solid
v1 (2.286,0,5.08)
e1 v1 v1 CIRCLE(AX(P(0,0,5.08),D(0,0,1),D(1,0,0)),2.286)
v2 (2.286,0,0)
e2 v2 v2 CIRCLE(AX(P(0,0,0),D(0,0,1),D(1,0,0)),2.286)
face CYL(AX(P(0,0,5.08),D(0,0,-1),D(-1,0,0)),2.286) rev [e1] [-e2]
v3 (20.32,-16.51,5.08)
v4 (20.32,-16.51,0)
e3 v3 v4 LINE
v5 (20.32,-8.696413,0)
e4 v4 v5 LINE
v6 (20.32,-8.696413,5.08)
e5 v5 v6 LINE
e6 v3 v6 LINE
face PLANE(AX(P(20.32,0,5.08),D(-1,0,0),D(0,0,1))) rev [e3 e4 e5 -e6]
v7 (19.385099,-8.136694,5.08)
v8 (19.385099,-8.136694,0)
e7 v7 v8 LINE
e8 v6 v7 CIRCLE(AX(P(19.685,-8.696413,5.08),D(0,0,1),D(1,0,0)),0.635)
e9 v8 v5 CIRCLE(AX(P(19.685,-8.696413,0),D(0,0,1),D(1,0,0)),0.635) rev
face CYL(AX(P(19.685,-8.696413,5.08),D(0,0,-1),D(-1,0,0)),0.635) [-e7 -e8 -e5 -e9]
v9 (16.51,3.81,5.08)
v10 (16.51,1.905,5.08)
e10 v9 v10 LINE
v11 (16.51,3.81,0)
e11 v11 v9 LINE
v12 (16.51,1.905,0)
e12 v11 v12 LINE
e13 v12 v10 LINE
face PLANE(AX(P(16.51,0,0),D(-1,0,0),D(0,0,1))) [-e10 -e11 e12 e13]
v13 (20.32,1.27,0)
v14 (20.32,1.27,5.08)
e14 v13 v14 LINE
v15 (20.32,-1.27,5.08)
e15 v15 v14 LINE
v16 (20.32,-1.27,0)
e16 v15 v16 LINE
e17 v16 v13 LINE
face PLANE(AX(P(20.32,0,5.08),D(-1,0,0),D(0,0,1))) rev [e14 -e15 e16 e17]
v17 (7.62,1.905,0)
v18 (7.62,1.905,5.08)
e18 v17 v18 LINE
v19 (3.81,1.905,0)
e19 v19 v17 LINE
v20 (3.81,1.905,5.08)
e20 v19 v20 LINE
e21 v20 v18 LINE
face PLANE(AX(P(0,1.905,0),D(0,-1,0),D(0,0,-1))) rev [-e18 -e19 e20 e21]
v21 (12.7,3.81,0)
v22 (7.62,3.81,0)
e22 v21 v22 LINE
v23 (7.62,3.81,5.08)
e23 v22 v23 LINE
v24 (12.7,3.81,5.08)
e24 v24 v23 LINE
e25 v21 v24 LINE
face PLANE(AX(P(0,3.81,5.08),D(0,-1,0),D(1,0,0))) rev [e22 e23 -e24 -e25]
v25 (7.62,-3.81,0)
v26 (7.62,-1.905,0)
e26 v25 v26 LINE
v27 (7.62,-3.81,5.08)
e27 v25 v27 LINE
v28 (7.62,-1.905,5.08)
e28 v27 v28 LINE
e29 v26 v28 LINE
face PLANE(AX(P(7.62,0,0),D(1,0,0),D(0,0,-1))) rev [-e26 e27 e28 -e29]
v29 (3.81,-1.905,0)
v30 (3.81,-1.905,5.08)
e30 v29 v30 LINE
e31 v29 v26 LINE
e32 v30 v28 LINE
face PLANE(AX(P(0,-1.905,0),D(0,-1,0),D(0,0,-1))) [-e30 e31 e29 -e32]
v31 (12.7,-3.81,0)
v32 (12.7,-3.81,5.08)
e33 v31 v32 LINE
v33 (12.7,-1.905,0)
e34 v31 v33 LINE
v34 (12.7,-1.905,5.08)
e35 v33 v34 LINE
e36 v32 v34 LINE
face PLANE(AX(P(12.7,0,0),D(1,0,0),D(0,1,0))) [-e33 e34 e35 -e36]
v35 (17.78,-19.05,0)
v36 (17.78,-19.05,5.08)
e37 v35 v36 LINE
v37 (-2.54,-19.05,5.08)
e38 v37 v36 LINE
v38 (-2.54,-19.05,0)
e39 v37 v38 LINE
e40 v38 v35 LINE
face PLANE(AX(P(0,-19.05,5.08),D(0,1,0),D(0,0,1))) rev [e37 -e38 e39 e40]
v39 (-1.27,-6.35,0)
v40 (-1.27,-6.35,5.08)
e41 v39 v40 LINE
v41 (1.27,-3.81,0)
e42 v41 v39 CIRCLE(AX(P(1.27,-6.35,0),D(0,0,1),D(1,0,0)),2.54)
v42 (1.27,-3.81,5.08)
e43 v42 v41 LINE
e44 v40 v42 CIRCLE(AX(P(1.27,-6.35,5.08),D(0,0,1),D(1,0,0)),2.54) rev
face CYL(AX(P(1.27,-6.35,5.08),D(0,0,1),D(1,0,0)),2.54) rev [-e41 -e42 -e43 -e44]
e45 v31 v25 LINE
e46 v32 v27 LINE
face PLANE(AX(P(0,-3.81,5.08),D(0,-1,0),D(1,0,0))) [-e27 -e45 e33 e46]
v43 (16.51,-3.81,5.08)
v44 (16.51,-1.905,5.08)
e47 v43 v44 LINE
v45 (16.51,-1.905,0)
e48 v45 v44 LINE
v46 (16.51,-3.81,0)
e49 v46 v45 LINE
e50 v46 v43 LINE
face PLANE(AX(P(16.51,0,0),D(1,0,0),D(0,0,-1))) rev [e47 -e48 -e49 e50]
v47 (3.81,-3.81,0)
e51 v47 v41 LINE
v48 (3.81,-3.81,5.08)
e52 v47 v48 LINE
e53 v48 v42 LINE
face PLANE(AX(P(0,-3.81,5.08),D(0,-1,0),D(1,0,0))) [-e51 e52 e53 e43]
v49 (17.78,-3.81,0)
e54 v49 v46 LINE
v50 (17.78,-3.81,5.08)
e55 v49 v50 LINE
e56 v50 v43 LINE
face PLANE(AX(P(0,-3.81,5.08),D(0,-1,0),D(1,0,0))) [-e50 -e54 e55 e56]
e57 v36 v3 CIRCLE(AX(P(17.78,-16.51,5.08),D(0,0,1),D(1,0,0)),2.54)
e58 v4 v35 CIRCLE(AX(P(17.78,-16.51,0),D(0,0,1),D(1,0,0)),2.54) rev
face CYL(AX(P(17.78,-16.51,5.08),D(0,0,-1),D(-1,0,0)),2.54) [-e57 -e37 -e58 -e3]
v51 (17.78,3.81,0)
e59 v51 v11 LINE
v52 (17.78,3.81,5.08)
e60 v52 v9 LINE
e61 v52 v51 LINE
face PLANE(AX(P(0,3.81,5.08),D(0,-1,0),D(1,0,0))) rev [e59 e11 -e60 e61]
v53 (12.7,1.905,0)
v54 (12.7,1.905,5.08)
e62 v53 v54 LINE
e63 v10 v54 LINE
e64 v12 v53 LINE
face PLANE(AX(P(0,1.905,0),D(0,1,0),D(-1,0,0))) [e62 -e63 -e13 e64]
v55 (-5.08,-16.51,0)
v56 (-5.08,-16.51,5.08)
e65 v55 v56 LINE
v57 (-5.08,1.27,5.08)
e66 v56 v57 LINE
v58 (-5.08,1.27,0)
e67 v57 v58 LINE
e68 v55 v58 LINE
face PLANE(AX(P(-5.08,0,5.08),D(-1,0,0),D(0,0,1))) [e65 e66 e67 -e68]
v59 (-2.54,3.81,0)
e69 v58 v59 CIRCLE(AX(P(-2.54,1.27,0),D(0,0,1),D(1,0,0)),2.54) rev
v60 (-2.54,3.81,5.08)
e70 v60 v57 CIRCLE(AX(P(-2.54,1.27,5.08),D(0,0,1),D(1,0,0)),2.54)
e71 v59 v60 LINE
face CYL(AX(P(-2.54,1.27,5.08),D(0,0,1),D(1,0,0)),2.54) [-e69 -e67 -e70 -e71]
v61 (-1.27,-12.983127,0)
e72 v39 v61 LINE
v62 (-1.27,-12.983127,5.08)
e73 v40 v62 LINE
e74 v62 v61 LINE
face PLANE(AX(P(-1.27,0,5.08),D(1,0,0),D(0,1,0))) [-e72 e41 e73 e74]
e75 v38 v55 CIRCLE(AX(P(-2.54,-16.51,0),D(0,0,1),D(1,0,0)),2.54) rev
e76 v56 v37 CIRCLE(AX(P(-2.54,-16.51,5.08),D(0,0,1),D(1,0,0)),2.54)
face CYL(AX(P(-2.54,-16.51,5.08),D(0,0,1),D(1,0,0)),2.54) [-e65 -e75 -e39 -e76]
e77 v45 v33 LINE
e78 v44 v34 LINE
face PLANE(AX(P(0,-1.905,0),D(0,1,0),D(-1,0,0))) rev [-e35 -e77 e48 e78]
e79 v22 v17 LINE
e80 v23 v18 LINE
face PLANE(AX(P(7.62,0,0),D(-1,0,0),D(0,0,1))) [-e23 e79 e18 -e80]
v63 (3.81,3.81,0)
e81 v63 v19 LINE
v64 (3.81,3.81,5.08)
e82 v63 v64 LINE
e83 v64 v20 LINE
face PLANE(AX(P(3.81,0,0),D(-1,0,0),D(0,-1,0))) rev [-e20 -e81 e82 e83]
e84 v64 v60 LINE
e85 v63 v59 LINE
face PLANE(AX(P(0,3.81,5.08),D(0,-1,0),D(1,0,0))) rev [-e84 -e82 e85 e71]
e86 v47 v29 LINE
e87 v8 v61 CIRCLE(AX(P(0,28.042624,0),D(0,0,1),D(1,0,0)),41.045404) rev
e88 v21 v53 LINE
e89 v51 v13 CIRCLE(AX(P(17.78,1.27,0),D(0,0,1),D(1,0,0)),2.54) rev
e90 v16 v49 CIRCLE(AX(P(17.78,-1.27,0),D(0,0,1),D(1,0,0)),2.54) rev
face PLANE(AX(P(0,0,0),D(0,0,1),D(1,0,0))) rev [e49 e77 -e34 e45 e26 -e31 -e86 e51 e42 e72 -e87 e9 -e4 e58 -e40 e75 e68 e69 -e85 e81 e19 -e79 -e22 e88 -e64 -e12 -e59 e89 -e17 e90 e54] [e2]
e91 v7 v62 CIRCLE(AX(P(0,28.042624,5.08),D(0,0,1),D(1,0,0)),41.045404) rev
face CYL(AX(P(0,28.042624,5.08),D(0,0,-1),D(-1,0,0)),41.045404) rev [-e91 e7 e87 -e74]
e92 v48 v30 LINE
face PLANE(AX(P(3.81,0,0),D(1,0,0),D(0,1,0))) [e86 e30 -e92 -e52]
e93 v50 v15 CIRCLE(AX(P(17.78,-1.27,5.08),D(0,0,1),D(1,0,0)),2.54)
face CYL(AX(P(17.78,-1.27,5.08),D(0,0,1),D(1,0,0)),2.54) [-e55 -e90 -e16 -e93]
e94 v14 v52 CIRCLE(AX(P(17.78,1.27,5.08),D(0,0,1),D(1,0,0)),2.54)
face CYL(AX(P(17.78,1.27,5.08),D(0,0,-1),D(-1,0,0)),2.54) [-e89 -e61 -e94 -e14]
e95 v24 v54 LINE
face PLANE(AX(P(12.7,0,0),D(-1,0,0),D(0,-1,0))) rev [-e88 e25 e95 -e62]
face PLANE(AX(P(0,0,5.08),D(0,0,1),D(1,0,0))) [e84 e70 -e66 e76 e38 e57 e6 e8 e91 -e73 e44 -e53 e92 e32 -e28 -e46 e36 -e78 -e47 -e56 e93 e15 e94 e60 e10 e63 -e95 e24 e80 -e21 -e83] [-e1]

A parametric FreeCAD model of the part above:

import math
import FreeCAD as App
import Part
import Sketcher
Q = App.Units.Quantity


def edges_at(feature, points):
    """Names of the edges that pass closest to the given points."""
    edges = feature.Shape.Edges
    near = lambda p: min(range(len(edges)), key=lambda i: edges[i].distToShape(Part.Vertex(*p))[0])
    return sorted({f"Edge{near(p) + 1}" for p in points})


def add_polygon(sketch, points):
    """Adds a closed chain of lines whose ends are joined by coincident constraints."""
    first, n = sketch.GeometryCount, len(points)
    for a, b in zip(points, points[1:] + points[:1]):
        sketch.addGeometry(Part.LineSegment(App.Vector(*a, 0), App.Vector(*b, 0)), False)
    for i in range(n):
        sketch.addConstraint(Sketcher.Constraint("Coincident", first + i, 2, first + (i + 1) % n, 1))

doc = App.newDocument("Part")
body = doc.addObject("PartDesign::Body", "Body")

# Sketch on XY plane
sketch1 = body.newObject("Sketcher::SketchObject", "Sketch")
sketch1.AttachmentSupport = (doc.getObject("XY_Plane"), [""])
sketch1.MapMode = "FlatFace"
sketch1.addGeometry([
    Part.ArcOfCircle(Part.Circle(App.Vector(0, 28, 0), App.Vector(0, 0, 1), 41), math.radians(-92), math.radians(-60)),  # 0
    Part.LineSegment(App.Vector(-1.3, -13, 0), App.Vector(-1.3, -3.8, 0)),  # 1
    Part.LineSegment(App.Vector(-1.3, -3.8, 0), App.Vector(20.3, -3.8, 0)),  # 2
    Part.LineSegment(App.Vector(20.3, -3.8, 0), App.Vector(20.3, 3.8, 0)),  # 3
    Part.LineSegment(App.Vector(20.3, 3.8, 0), App.Vector(-5.1, 3.8, 0)),  # 4
    Part.LineSegment(App.Vector(-5.1, 3.8, 0), App.Vector(-5.1, -19.1, 0)),  # 5
    Part.LineSegment(App.Vector(-5.1, -19.1, 0), App.Vector(20.3, -19.1, 0)),  # 6
    Part.LineSegment(App.Vector(20.3, -19.1, 0), App.Vector(20.3, -7.6, 0)),  # 7
    Part.Circle(App.Vector(0, 0, 0), App.Vector(0, 0, 1), 2.3),  # 8
], False)
sketch1.addConstraint([
    Sketcher.Constraint("Coincident", 0, 1, 1, 1),
    Sketcher.Constraint("Coincident", 1, 2, 2, 1),
    Sketcher.Constraint("Coincident", 2, 2, 3, 1),
    Sketcher.Constraint("Coincident", 3, 2, 4, 1),
    Sketcher.Constraint("Coincident", 4, 2, 5, 1),
    Sketcher.Constraint("Coincident", 5, 2, 6, 1),
    Sketcher.Constraint("Coincident", 6, 2, 7, 1),
    Sketcher.Constraint("Coincident", 7, 2, 0, 2),
    Sketcher.Constraint("Vertical", 1),
    Sketcher.Constraint("Horizontal", 2),
    Sketcher.Constraint("Vertical", 3),
    Sketcher.Constraint("Horizontal", 4),
    Sketcher.Constraint("Vertical", 5),
    Sketcher.Constraint("Horizontal", 6),
    Sketcher.Constraint("Vertical", 7),
    Sketcher.Constraint("Coincident", 8, 3, -1, 1),
    Sketcher.Constraint("PointOnObject", 0, 3, -2),
    Sketcher.Constraint("Vertical", 3, 2, 6, 2),
    Sketcher.Constraint("Diameter", 8, Q("0.18 in")),
    Sketcher.Constraint("DistanceX", 4, 2, 4, 1, Q("1 in")),
    Sketcher.Constraint("DistanceY", 3, 1, 3, 2, Q("0.3 in")),
    Sketcher.Constraint("DistanceY", 5, 2, 5, 1, Q("0.9 in")),
    Sketcher.Constraint("DistanceX", 2, 1, 2, 2, Q("0.85 in")),
    Sketcher.Constraint("DistanceY", 7, 1, 7, 2, Q("0.45 in")),
    Sketcher.Constraint("DistanceX", -1, 1, 2, 2, Q("0.8 in")),
    Sketcher.Constraint("DistanceY", 7, 2, -1, 1, Q("0.3 in")),
    Sketcher.Constraint("Radius", 0, Q("41.045404 mm")),
])
pad1 = body.newObject("PartDesign::Pad", "Pad")
pad1.Profile = sketch1
pad1.Length = Q("0.2 in")
doc.recompute()

fillet = body.newObject("PartDesign::Fillet", "Fillet")
fillet.Base = (pad1, edges_at(pad1, [
    (-5.08, 3.81, 2.54),
    (20.32, 3.81, 2.54),
    (20.32, -3.81, 2.54),
    (-1.27, -3.81, 2.54),
    (20.32, -19.05, 2.54),
    (-5.08, -19.05, 2.54),
]))
fillet.Radius = Q("0.1 in")
doc.recompute()

fillet2 = body.newObject("PartDesign::Fillet", "Fillet001")
fillet2.Base = (fillet, edges_at(fillet, [(20.32, -7.62, 2.54)]))
fillet2.Radius = Q("0.025 in")

# Sketch on XY plane
sketch2 = body.newObject("Sketcher::SketchObject", "Sketch001")
sketch2.AttachmentSupport = (doc.getObject("XY_Plane"), [""])
sketch2.MapMode = "FlatFace"
sketch2.AttachmentOffset = App.Placement(App.Vector(0, 0, 0.2 * 25.4), App.Rotation())
add_polygon(sketch2, [(3.8, 3.8), (3.8, 1.9), (7.6, 1.9), (7.6, 3.8)])  # lines 0-3
add_polygon(sketch2, [(3.8, -1.9), (3.8, -3.8), (7.6, -3.8), (7.6, -1.9)])  # lines 4-7
add_polygon(sketch2, [(12.7, 3.8), (12.7, 1.9), (16.5, 1.9), (16.5, 3.8)])  # lines 8-11
add_polygon(sketch2, [(12.7, -1.9), (12.7, -3.8), (16.5, -3.8), (16.5, -1.9)])  # lines 12-15
sketch2.addConstraint([
    Sketcher.Constraint("Vertical", 0),
    Sketcher.Constraint("Horizontal", 1),
    Sketcher.Constraint("Vertical", 2),
    Sketcher.Constraint("Horizontal", 3),
    Sketcher.Constraint("Vertical", 4),
    Sketcher.Constraint("Horizontal", 5),
    Sketcher.Constraint("Vertical", 6),
    Sketcher.Constraint("Horizontal", 7),
    Sketcher.Constraint("Vertical", 8),
    Sketcher.Constraint("Horizontal", 9),
    Sketcher.Constraint("Vertical", 10),
    Sketcher.Constraint("Horizontal", 11),
    Sketcher.Constraint("Vertical", 12),
    Sketcher.Constraint("Horizontal", 13),
    Sketcher.Constraint("Vertical", 14),
    Sketcher.Constraint("Horizontal", 15),
    Sketcher.Constraint("Symmetric", 3, 2, 4, 2, -1),
    Sketcher.Constraint("Symmetric", 1, 2, 6, 2, -1),
    Sketcher.Constraint("Symmetric", 11, 2, 12, 2, -1),
    Sketcher.Constraint("Symmetric", 9, 2, 14, 2, -1),
    Sketcher.Constraint("Horizontal", 1, 2, 8, 2),
    Sketcher.Constraint("Horizontal", 3, 2, 10, 2),
    Sketcher.Constraint("Equal", 7, 9),
    Sketcher.Constraint("DistanceX", 1, 1, 1, 2, Q("0.15 in")),
    Sketcher.Constraint("DistanceX", -1, 1, 1, 2, Q("0.3 in")),
    Sketcher.Constraint("DistanceX", -1, 1, 8, 2, Q("0.5 in")),
    Sketcher.Constraint("DistanceY", 4, 2, 3, 2, Q("0.3 in")),
    Sketcher.Constraint("DistanceY", 0, 2, 0, 1, Q("0.075 in")),
])
pocket1 = body.newObject("PartDesign::Pocket", "Pocket")
pocket1.Profile = sketch2
pocket1.Type = "ThroughAll"

doc.recompute()
